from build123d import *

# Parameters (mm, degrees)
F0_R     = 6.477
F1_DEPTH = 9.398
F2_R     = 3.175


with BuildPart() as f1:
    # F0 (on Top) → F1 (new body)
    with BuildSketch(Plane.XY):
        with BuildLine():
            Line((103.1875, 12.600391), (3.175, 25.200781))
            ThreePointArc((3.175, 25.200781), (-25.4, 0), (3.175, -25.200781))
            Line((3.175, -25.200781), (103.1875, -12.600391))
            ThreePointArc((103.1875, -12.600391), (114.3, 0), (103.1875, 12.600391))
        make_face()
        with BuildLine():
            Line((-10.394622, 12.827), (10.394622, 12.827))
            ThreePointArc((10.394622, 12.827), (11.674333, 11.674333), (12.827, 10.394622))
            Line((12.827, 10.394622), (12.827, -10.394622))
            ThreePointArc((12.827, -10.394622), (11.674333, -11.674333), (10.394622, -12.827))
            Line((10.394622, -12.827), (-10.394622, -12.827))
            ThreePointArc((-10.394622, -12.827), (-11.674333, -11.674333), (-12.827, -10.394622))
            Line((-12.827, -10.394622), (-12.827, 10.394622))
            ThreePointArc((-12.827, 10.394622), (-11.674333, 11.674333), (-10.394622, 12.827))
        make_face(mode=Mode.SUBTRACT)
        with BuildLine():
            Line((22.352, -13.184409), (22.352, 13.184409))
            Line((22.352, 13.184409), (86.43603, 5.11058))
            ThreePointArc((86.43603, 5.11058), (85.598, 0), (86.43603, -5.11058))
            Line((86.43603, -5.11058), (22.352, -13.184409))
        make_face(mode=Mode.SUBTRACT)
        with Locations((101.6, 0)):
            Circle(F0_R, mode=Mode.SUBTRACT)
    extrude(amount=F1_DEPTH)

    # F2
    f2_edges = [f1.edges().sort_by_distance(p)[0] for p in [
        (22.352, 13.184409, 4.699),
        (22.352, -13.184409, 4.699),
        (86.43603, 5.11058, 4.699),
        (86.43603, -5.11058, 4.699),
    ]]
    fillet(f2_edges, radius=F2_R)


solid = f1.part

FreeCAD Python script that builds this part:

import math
import FreeCAD as App
import Part
import Sketcher
from FreeCAD import Vector
Q = App.Units.Quantity


def edges_at(feature, points):
    """Names of the edges that pass closest to the given points."""
    edges = feature.Shape.Edges
    near = lambda p: min(range(len(edges)), key=lambda i: edges[i].distToShape(Part.Vertex(*p))[0])
    return sorted({f"Edge{near(p) + 1}" for p in points})

doc = App.newDocument("Part")
body = doc.addObject("PartDesign::Body", "Body")

# Sketch on XY plane
sketch1 = doc.addObject("Sketcher::SketchObject", "Sketch")
body.addObject(sketch1)
sketch1.AttachmentSupport = (doc.XY_Plane, [""])
sketch1.MapMode = "FlatFace"
sketch1.addGeometry(Part.LineSegment(Vector(103.1875, 12.600391, 0), Vector(3.175, 25.200781, 0)), False)
sketch1.addGeometry(Part.ArcOfCircle(Part.Circle(Vector(0, 0, 0), Vector(0, 0, 1), 25.4), math.radians(82.819244), math.radians(277.180756)), False)
sketch1.addGeometry(Part.LineSegment(Vector(3.175, -25.200781, 0), Vector(103.1875, -12.600391, 0)), False)
sketch1.addGeometry(Part.ArcOfCircle(Part.Circle(Vector(101.6, 0, 0), Vector(0, 0, 1), 12.7), math.radians(-82.819242), math.radians(82.819242)), False)
sketch1.addGeometry(Part.ArcOfCircle(Part.Circle(Vector(-0.000025, 0.000025, 0), Vector(0, 0, 1), 16.509964), math.radians(129.020274), math.radians(140.979726)), False)
sketch1.addGeometry(Part.LineSegment(Vector(-10.394622, 12.827, 0), Vector(10.394622, 12.827, 0)), False)
sketch1.addGeometry(Part.ArcOfCircle(Part.Circle(Vector(0.000025, 0.000025, 0), Vector(0, 0, 1), 16.509964), math.radians(39.020274), math.radians(50.979726)), False)
sketch1.addGeometry(Part.LineSegment(Vector(12.827, 10.394622, 0), Vector(12.827, -10.394622, 0)), False)
sketch1.addGeometry(Part.ArcOfCircle(Part.Circle(Vector(0.000025, -0.000025, 0), Vector(0, 0, 1), 16.509964), math.radians(-50.979726), math.radians(-39.020274)), False)
sketch1.addGeometry(Part.LineSegment(Vector(10.394622, -12.827, 0), Vector(-10.394622, -12.827, 0)), False)
sketch1.addGeometry(Part.ArcOfCircle(Part.Circle(Vector(-0.000025, -0.000025, 0), Vector(0, 0, 1), 16.509964), math.radians(-140.979726), math.radians(-129.020274)), False)
sketch1.addGeometry(Part.LineSegment(Vector(-12.827, -10.394622, 0), Vector(-12.827, 10.394622, 0)), False)
sketch1.addGeometry(Part.LineSegment(Vector(86.43603, -5.11058, 0), Vector(22.352, -13.184409, 0)), False)
sketch1.addGeometry(Part.LineSegment(Vector(22.352, -13.184409, 0), Vector(22.352, 13.184409, 0)), False)
sketch1.addGeometry(Part.LineSegment(Vector(22.352, 13.184409, 0), Vector(86.43603, 5.11058, 0)), False)
sketch1.addGeometry(Part.ArcOfCircle(Part.Circle(Vector(101.600006, 0, 0), Vector(0, 0, 1), 16.002006), math.radians(161.375097), math.radians(198.624903)), False)
sketch1.addGeometry(Part.Circle(Vector(101.6, 0, 0), Vector(0, 0, 1), 6.477), False)
sketch1.addConstraint(Sketcher.Constraint("Tangent", 0, 2, 1, 1))
sketch1.addConstraint(Sketcher.Constraint("Tangent", 1, 2, 2, 1))
sketch1.addConstraint(Sketcher.Constraint("Tangent", 2, 2, 3, 1))
sketch1.addConstraint(Sketcher.Constraint("Tangent", 3, 2, 0, 1))
sketch1.addConstraint(Sketcher.Constraint("Coincident", 4, 1, 5, 1))
sketch1.addConstraint(Sketcher.Constraint("Coincident", 5, 2, 6, 2))
sketch1.addConstraint(Sketcher.Constraint("Coincident", 6, 1, 7, 1))
sketch1.addConstraint(Sketcher.Constraint("Coincident", 7, 2, 8, 2))
sketch1.addConstraint(Sketcher.Constraint("Coincident", 8, 1, 9, 1))
sketch1.addConstraint(Sketcher.Constraint("Coincident", 9, 2, 10, 2))
sketch1.addConstraint(Sketcher.Constraint("Coincident", 10, 1, 11, 1))
sketch1.addConstraint(Sketcher.Constraint("Coincident", 11, 2, 4, 2))
sketch1.addConstraint(Sketcher.Constraint("Coincident", 12, 2, 13, 1))
sketch1.addConstraint(Sketcher.Constraint("Coincident", 13, 2, 14, 1))
sketch1.addConstraint(Sketcher.Constraint("Coincident", 14, 2, 15, 1))
sketch1.addConstraint(Sketcher.Constraint("Coincident", 15, 2, 12, 1))
sketch1.addConstraint(Sketcher.Constraint("Horizontal", 5))
sketch1.addConstraint(Sketcher.Constraint("Vertical", 7))
sketch1.addConstraint(Sketcher.Constraint("Horizontal", 9))
sketch1.addConstraint(Sketcher.Constraint("Vertical", 11))
sketch1.addConstraint(Sketcher.Constraint("Vertical", 13))
sketch1.addConstraint(Sketcher.Constraint("Coincident", 1, 3, -1, 1))
sketch1.addConstraint(Sketcher.Constraint("Coincident", 15, 3, 3, 3))
sketch1.addConstraint(Sketcher.Constraint("Coincident", 16, 3, 3, 3))
sketch1.addConstraint(Sketcher.Constraint("Equal", 4, 6))
sketch1.addConstraint(Sketcher.Constraint("Equal", 6, 8))
sketch1.addConstraint(Sketcher.Constraint("Equal", 8, 10))
sketch1.addConstraint(Sketcher.Constraint("Symmetric", 4, 3, 8, 3, -1, 1))
sketch1.addConstraint(Sketcher.Constraint("Symmetric", 6, 3, 10, 3, -1, 1))
sketch1.addConstraint(Sketcher.Constraint("Symmetric", 4, 3, 6, 3, -2))
sketch1.addConstraint(Sketcher.Constraint("Symmetric", 14, 2, 15, 2, -1))
sketch1.addConstraint(Sketcher.Constraint("Parallel", 2, 12))
sketch1.addConstraint(Sketcher.Constraint("Parallel", 0, 14))
sketch1.addConstraint(Sketcher.Constraint("Horizontal", 7, 2, 10, 1))
sketch1.addConstraint(Sketcher.Constraint("Vertical", 5, 2, 8, 1))
sketch1.addConstraint(Sketcher.Constraint("Equal", 9, 7))
sketch1.addConstraint(Sketcher.Constraint("Radius", 1, Q("1 in")))
sketch1.addConstraint(Sketcher.Constraint("Radius", 3, Q("0.5 in")))
sketch1.addConstraint(Sketcher.Constraint("Diameter", 16, Q("0.51 in")))
sketch1.addConstraint(Sketcher.Constraint("DistanceX", -1, 1, 3, 3, Q("4 in")))
sketch1.addConstraint(Sketcher.Constraint("DistanceX", -1, 1, 12, 2, Q("0.88 in")))
sketch1.addConstraint(Sketcher.Constraint("DistanceY", -1, 1, 4, 1, Q("0.505 in")))
sketch1.addConstraint(Sketcher.Constraint("DistanceX", -1, 1, 6, 1, Q("0.505 in")))
sketch1.addConstraint(Sketcher.Constraint("Radius", 4, Q("16.509964 mm")))
sketch1.addConstraint(Sketcher.Constraint("Radius", 15, Q("16.002006 mm")))
sketch1.addConstraint(Sketcher.Constraint("DistanceY", 13, 1, 13, 2, Q("26.368818 mm")))
sketch1.addConstraint(Sketcher.Constraint("DistanceX", 5, 1, 5, 2, Q("20.789244 mm")))
pad1 = doc.addObject("PartDesign::Pad", "Pad")
body.addObject(pad1)
pad1.Profile = sketch1
pad1.Length = Q("0.37 in")
doc.recompute()

fillet = doc.addObject("PartDesign::Fillet", "Fillet")
body.addObject(fillet)
fillet.Base = (pad1, edges_at(pad1, [
    (22.352, 13.184, 4.699),
    (22.352, -13.184, 4.699),
    (86.436, 5.111, 4.699),
    (86.436, -5.111, 4.699),
]))
fillet.Radius = Q("0.125 in")

doc.recompute()
